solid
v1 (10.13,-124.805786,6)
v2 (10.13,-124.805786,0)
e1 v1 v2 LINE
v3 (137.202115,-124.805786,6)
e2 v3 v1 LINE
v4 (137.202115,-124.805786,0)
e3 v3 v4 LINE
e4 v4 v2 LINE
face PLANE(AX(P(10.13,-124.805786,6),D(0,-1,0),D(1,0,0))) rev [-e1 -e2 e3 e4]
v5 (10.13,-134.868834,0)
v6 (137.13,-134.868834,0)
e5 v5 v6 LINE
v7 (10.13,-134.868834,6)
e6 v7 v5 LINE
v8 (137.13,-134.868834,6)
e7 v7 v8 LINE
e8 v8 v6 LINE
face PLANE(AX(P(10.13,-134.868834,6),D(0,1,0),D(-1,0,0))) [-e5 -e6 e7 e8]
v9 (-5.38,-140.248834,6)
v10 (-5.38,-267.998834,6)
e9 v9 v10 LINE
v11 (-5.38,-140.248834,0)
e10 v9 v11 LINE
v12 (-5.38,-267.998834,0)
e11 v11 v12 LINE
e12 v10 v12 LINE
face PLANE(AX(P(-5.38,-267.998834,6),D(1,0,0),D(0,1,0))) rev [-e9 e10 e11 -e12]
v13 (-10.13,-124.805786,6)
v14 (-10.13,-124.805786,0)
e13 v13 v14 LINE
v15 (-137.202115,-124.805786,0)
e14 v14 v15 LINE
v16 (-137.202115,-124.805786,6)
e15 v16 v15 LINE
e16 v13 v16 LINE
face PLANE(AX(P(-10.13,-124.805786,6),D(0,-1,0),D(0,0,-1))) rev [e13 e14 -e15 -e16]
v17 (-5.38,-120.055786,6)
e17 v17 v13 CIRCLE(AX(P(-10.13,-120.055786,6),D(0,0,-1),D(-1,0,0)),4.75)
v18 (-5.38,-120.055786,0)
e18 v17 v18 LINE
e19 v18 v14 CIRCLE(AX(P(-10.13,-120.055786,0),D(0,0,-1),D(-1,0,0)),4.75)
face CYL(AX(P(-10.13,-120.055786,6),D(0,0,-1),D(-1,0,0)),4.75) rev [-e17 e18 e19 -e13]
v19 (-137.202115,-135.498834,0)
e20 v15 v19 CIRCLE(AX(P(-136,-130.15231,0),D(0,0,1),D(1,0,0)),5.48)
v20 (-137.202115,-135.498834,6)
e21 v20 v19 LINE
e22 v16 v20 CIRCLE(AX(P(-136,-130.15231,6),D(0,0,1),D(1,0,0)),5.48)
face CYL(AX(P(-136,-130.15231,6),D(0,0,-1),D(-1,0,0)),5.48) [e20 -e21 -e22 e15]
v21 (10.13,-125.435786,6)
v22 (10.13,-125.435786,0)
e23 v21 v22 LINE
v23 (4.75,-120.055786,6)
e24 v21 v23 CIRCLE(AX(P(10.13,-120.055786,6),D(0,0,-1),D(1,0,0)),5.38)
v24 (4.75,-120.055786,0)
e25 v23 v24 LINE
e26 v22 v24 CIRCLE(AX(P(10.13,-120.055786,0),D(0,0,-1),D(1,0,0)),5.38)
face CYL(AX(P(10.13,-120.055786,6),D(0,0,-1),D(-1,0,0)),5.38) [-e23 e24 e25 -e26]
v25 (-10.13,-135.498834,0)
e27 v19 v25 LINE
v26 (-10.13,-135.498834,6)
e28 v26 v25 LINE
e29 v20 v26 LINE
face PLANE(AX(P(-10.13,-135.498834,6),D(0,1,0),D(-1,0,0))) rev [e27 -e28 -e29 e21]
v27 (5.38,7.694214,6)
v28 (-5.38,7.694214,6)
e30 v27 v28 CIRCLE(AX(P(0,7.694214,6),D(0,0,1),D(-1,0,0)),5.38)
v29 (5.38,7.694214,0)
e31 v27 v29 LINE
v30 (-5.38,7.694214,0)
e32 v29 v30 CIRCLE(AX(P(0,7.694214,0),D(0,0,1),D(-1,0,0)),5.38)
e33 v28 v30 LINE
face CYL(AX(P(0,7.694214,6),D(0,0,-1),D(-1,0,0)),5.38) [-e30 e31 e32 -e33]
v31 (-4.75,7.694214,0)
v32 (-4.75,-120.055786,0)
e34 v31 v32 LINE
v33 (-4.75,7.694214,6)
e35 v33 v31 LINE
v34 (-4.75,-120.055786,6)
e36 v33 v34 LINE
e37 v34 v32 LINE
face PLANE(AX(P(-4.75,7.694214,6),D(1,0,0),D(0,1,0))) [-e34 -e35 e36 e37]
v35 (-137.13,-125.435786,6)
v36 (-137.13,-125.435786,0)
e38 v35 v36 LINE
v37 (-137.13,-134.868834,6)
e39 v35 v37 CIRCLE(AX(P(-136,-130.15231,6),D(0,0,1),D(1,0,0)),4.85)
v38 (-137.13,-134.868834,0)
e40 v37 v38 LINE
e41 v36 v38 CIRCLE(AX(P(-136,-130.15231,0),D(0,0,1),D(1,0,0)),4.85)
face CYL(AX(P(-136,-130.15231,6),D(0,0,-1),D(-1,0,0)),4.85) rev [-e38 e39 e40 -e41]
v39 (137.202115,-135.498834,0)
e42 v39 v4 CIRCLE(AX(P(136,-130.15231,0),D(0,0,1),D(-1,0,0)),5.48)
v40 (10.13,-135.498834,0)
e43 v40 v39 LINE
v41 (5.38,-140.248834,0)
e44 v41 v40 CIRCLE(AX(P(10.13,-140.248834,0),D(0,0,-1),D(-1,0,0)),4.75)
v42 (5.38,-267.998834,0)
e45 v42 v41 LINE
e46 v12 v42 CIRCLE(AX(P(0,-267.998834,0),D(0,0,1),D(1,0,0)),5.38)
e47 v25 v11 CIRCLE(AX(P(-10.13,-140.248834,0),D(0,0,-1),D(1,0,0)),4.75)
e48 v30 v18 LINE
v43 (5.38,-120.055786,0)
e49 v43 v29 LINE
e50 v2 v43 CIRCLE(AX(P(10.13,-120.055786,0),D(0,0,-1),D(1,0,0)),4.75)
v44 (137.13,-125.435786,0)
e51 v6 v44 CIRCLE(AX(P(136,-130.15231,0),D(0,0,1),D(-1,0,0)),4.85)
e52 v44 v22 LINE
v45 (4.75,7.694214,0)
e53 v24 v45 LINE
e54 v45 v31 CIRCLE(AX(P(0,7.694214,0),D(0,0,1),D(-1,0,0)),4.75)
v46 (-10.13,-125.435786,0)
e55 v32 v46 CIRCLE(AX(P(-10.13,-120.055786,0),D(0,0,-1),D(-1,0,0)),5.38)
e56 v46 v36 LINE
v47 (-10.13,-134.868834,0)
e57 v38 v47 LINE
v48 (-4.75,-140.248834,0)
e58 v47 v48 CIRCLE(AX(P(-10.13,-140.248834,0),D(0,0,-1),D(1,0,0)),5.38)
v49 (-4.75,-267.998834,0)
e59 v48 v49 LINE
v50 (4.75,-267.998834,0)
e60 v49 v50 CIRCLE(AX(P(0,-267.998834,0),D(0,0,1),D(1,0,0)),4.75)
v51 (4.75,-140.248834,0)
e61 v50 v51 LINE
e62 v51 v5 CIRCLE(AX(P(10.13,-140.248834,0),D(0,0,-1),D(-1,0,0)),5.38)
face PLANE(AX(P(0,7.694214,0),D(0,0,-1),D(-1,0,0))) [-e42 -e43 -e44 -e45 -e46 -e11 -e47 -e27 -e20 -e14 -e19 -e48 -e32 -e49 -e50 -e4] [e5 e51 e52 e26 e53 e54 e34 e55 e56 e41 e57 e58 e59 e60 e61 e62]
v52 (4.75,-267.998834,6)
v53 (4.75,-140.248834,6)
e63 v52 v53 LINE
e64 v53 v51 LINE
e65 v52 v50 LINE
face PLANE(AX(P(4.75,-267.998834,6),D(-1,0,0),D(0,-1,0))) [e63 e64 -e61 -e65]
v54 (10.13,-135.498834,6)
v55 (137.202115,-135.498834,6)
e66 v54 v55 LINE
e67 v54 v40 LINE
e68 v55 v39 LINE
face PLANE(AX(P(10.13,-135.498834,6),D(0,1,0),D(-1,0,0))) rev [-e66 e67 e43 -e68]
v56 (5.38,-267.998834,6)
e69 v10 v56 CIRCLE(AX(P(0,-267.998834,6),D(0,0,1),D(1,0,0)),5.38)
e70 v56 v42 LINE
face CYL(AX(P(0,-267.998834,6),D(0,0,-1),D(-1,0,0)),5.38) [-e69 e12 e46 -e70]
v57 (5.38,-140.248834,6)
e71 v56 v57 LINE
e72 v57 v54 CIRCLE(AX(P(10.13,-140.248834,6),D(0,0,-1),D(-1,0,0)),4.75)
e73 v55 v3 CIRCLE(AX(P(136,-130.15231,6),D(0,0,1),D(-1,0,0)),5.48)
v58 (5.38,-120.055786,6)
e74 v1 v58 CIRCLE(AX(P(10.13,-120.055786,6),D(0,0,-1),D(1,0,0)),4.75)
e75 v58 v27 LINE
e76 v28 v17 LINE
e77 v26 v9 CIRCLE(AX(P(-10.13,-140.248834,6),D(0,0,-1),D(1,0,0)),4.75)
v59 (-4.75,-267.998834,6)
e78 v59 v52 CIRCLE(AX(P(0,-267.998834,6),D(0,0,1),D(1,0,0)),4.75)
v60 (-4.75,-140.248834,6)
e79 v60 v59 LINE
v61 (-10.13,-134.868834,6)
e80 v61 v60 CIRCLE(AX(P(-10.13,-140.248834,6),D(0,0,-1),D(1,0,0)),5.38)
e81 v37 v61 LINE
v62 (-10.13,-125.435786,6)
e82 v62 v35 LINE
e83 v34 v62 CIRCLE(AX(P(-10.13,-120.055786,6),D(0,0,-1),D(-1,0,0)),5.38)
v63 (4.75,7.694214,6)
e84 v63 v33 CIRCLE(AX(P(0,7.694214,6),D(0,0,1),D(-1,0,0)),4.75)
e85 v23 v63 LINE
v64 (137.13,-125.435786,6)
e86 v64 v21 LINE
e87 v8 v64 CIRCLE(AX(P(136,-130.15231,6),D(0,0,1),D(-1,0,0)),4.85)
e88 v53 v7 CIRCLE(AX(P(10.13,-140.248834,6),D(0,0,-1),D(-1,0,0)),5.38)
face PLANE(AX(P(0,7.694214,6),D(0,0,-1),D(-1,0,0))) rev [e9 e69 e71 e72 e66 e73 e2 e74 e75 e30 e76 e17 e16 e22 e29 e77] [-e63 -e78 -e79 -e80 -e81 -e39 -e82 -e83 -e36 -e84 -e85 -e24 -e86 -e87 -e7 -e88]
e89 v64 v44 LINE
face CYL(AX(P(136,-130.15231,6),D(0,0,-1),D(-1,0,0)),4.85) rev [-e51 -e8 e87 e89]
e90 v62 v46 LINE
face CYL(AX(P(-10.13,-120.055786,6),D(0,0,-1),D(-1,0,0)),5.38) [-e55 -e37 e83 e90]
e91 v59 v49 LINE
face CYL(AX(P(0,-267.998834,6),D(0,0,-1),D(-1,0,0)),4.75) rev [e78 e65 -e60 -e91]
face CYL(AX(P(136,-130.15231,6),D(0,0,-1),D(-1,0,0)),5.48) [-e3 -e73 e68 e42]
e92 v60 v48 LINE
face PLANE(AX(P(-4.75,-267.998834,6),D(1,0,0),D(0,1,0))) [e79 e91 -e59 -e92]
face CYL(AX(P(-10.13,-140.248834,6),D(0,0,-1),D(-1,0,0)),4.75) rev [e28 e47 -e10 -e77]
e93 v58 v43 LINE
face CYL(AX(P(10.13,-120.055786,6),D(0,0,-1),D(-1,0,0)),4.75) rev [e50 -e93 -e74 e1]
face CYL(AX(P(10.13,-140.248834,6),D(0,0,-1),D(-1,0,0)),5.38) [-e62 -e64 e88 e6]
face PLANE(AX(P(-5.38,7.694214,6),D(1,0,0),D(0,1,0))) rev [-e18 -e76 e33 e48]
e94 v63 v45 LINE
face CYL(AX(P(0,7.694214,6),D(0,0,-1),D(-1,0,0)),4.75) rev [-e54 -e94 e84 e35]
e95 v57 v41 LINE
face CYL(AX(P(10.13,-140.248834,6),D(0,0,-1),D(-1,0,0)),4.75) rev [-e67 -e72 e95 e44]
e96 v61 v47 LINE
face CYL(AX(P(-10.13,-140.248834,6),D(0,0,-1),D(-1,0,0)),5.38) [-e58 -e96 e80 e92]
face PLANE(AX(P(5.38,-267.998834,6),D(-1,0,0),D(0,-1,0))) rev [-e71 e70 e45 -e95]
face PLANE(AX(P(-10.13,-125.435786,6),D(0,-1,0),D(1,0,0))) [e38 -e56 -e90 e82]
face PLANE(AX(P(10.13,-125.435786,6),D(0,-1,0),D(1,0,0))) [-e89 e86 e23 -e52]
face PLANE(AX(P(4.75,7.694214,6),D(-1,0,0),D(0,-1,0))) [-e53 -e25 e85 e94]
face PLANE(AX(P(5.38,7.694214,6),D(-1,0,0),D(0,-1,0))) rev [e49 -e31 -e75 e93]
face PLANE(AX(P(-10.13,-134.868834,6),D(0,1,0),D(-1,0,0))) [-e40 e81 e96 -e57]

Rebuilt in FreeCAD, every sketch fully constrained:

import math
import FreeCAD as App
import Part
import Sketcher

doc = App.newDocument("Part")
body = doc.addObject("PartDesign::Body", "Body")

# Sketch on XY plane
sketch1 = body.newObject("Sketcher::SketchObject", "Sketch")
sketch1.AttachmentSupport = (doc.getObject("XY_Plane"), [""])
sketch1.MapMode = "FlatFace"
sketch1.addGeometry(Part.LineSegment(App.Vector(-5.38, 7.694214, 0), App.Vector(-5.38, -120.055786, 0)), False)
sketch1.addGeometry(Part.ArcOfCircle(Part.Circle(App.Vector(-10.13, -120.055786, 0), App.Vector(0, 0, 1), 4.75), math.radians(-90), math.radians(0)), False)
sketch1.addGeometry(Part.LineSegment(App.Vector(-10.13, -124.805786, 0), App.Vector(-137.202115, -124.805786, 0)), False)
sketch1.addGeometry(Part.ArcOfCircle(Part.Circle(App.Vector(-136, -130.15231, 0), App.Vector(0, 0, 1), 5.48), math.radians(102.671679), math.radians(257.328321)), False)
sketch1.addGeometry(Part.LineSegment(App.Vector(-137.202115, -135.498834, 0), App.Vector(-10.13, -135.498834, 0)), False)
sketch1.addGeometry(Part.ArcOfCircle(Part.Circle(App.Vector(-10.13, -140.248834, 0), App.Vector(0, 0, 1), 4.75), math.radians(0), math.radians(90)), False)
sketch1.addGeometry(Part.LineSegment(App.Vector(-5.38, -140.248834, 0), App.Vector(-5.38, -267.998834, 0)), False)
sketch1.addGeometry(Part.ArcOfCircle(Part.Circle(App.Vector(0, -267.998834, 0), App.Vector(0, 0, 1), 5.38), math.radians(180), math.radians(360)), False)
sketch1.addGeometry(Part.LineSegment(App.Vector(5.38, -267.998834, 0), App.Vector(5.38, -140.248834, 0)), False)
sketch1.addGeometry(Part.ArcOfCircle(Part.Circle(App.Vector(10.13, -140.248834, 0), App.Vector(0, 0, 1), 4.75), math.radians(90), math.radians(180)), False)
sketch1.addGeometry(Part.LineSegment(App.Vector(10.13, -135.498834, 0), App.Vector(137.202115, -135.498834, 0)), False)
sketch1.addGeometry(Part.ArcOfCircle(Part.Circle(App.Vector(136, -130.15231, 0), App.Vector(0, 0, 1), 5.48), math.radians(-77.328321), math.radians(77.328321)), False)
sketch1.addGeometry(Part.LineSegment(App.Vector(137.202115, -124.805786, 0), App.Vector(10.13, -124.805786, 0)), False)
sketch1.addGeometry(Part.ArcOfCircle(Part.Circle(App.Vector(10.13, -120.055786, 0), App.Vector(0, 0, 1), 4.75), math.radians(180), math.radians(270)), False)
sketch1.addGeometry(Part.LineSegment(App.Vector(5.38, -120.055786, 0), App.Vector(5.38, 7.694214, 0)), False)
sketch1.addGeometry(Part.ArcOfCircle(Part.Circle(App.Vector(0, 7.694214, 0), App.Vector(0, 0, 1), 5.38), math.radians(0), math.radians(180)), False)
sketch1.addGeometry(Part.LineSegment(App.Vector(-4.75, -120.055786, 0), App.Vector(-4.75, 7.694214, 0)), False)
sketch1.addGeometry(Part.ArcOfCircle(Part.Circle(App.Vector(0, 7.694214, 0), App.Vector(0, 0, 1), 4.75), math.radians(0), math.radians(180)), False)
sketch1.addGeometry(Part.LineSegment(App.Vector(4.75, 7.694214, 0), App.Vector(4.75, -120.055786, 0)), False)
sketch1.addGeometry(Part.ArcOfCircle(Part.Circle(App.Vector(10.13, -120.055786, 0), App.Vector(0, 0, 1), 5.38), math.radians(180), math.radians(270)), False)
sketch1.addGeometry(Part.LineSegment(App.Vector(10.13, -125.435786, 0), App.Vector(137.13, -125.435786, 0)), False)
sketch1.addGeometry(Part.ArcOfCircle(Part.Circle(App.Vector(136, -130.15231, 0), App.Vector(0, 0, 1), 4.85), math.radians(-76.526849), math.radians(76.526849)), False)
sketch1.addGeometry(Part.LineSegment(App.Vector(137.13, -134.868834, 0), App.Vector(10.13, -134.868834, 0)), False)
sketch1.addGeometry(Part.ArcOfCircle(Part.Circle(App.Vector(10.13, -140.248834, 0), App.Vector(0, 0, 1), 5.38), math.radians(90), math.radians(180)), False)
sketch1.addGeometry(Part.LineSegment(App.Vector(4.75, -140.248834, 0), App.Vector(4.75, -267.998834, 0)), False)
sketch1.addGeometry(Part.ArcOfCircle(Part.Circle(App.Vector(0, -267.998834, 0), App.Vector(0, 0, 1), 4.75), math.radians(180), math.radians(360)), False)
sketch1.addGeometry(Part.LineSegment(App.Vector(-4.75, -267.998834, 0), App.Vector(-4.75, -140.248834, 0)), False)
sketch1.addGeometry(Part.ArcOfCircle(Part.Circle(App.Vector(-10.13, -140.248834, 0), App.Vector(0, 0, 1), 5.38), math.radians(0), math.radians(90)), False)
sketch1.addGeometry(Part.LineSegment(App.Vector(-10.13, -134.868834, 0), App.Vector(-137.13, -134.868834, 0)), False)
sketch1.addGeometry(Part.ArcOfCircle(Part.Circle(App.Vector(-136, -130.15231, 0), App.Vector(0, 0, 1), 4.85), math.radians(103.473151), math.radians(256.526849)), False)
sketch1.addGeometry(Part.LineSegment(App.Vector(-137.13, -125.435786, 0), App.Vector(-10.13, -125.435786, 0)), False)
sketch1.addGeometry(Part.ArcOfCircle(Part.Circle(App.Vector(-10.13, -120.055786, 0), App.Vector(0, 0, 1), 5.38), math.radians(-90), math.radians(0)), False)
sketch1.addConstraint(Sketcher.Constraint("Tangent", 0, 2, 1, 2))
sketch1.addConstraint(Sketcher.Constraint("Tangent", 1, 1, 2, 1))
sketch1.addConstraint(Sketcher.Constraint("Coincident", 2, 2, 3, 1))
sketch1.addConstraint(Sketcher.Constraint("Coincident", 3, 2, 4, 1))
sketch1.addConstraint(Sketcher.Constraint("Tangent", 4, 2, 5, 2))
sketch1.addConstraint(Sketcher.Constraint("Tangent", 5, 1, 6, 1))
sketch1.addConstraint(Sketcher.Constraint("Tangent", 6, 2, 7, 1))
sketch1.addConstraint(Sketcher.Constraint("Tangent", 7, 2, 8, 1))
sketch1.addConstraint(Sketcher.Constraint("Tangent", 8, 2, 9, 2))
sketch1.addConstraint(Sketcher.Constraint("Tangent", 9, 1, 10, 1))
sketch1.addConstraint(Sketcher.Constraint("Coincident", 10, 2, 11, 1))
sketch1.addConstraint(Sketcher.Constraint("Coincident", 11, 2, 12, 1))
sketch1.addConstraint(Sketcher.Constraint("Tangent", 12, 2, 13, 2))
sketch1.addConstraint(Sketcher.Constraint("Tangent", 13, 1, 14, 1))
sketch1.addConstraint(Sketcher.Constraint("Tangent", 14, 2, 15, 1))
sketch1.addConstraint(Sketcher.Constraint("Tangent", 15, 2, 0, 1))
sketch1.addConstraint(Sketcher.Constraint("Tangent", 16, 2, 17, 2))
sketch1.addConstraint(Sketcher.Constraint("Tangent", 17, 1, 18, 1))
sketch1.addConstraint(Sketcher.Constraint("Tangent", 18, 2, 19, 1))
sketch1.addConstraint(Sketcher.Constraint("Tangent", 19, 2, 20, 1))
sketch1.addConstraint(Sketcher.Constraint("Coincident", 20, 2, 21, 2))
sketch1.addConstraint(Sketcher.Constraint("Coincident", 21, 1, 22, 1))
sketch1.addConstraint(Sketcher.Constraint("Tangent", 22, 2, 23, 1))
sketch1.addConstraint(Sketcher.Constraint("Tangent", 23, 2, 24, 1))
sketch1.addConstraint(Sketcher.Constraint("Tangent", 24, 2, 25, 2))
sketch1.addConstraint(Sketcher.Constraint("Tangent", 25, 1, 26, 1))
sketch1.addConstraint(Sketcher.Constraint("Tangent", 26, 2, 27, 1))
sketch1.addConstraint(Sketcher.Constraint("Tangent", 27, 2, 28, 1))
sketch1.addConstraint(Sketcher.Constraint("Coincident", 28, 2, 29, 2))
sketch1.addConstraint(Sketcher.Constraint("Coincident", 29, 1, 30, 1))
sketch1.addConstraint(Sketcher.Constraint("Tangent", 30, 2, 31, 1))
sketch1.addConstraint(Sketcher.Constraint("Tangent", 31, 2, 16, 1))
sketch1.addConstraint(Sketcher.Constraint("Vertical", 0))
sketch1.addConstraint(Sketcher.Constraint("Horizontal", 2))
sketch1.addConstraint(Sketcher.Constraint("Horizontal", 4))
sketch1.addConstraint(Sketcher.Constraint("Vertical", 6))
sketch1.addConstraint(Sketcher.Constraint("Vertical", 8))
sketch1.addConstraint(Sketcher.Constraint("Horizontal", 10))
sketch1.addConstraint(Sketcher.Constraint("Horizontal", 12))
sketch1.addConstraint(Sketcher.Constraint("Vertical", 14))
sketch1.addConstraint(Sketcher.Constraint("Vertical", 16))
sketch1.addConstraint(Sketcher.Constraint("Vertical", 18))
sketch1.addConstraint(Sketcher.Constraint("Horizontal", 20))
sketch1.addConstraint(Sketcher.Constraint("Horizontal", 22))
sketch1.addConstraint(Sketcher.Constraint("Vertical", 24))
sketch1.addConstraint(Sketcher.Constraint("Vertical", 26))
sketch1.addConstraint(Sketcher.Constraint("Horizontal", 28))
sketch1.addConstraint(Sketcher.Constraint("Horizontal", 30))
sketch1.addConstraint(Sketcher.Constraint("Coincident", 17, 3, 15, 3))
sketch1.addConstraint(Sketcher.Constraint("Coincident", 19, 3, 13, 3))
sketch1.addConstraint(Sketcher.Constraint("Coincident", 21, 3, 11, 3))
sketch1.addConstraint(Sketcher.Constraint("Coincident", 23, 3, 9, 3))
sketch1.addConstraint(Sketcher.Constraint("Coincident", 25, 3, 7, 3))
sketch1.addConstraint(Sketcher.Constraint("Coincident", 27, 3, 5, 3))
sketch1.addConstraint(Sketcher.Constraint("Coincident", 29, 3, 3, 3))
sketch1.addConstraint(Sketcher.Constraint("Coincident", 31, 3, 1, 3))
sketch1.addConstraint(Sketcher.Constraint("Equal", 1, 5))
sketch1.addConstraint(Sketcher.Constraint("Equal", 5, 9))
sketch1.addConstraint(Sketcher.Constraint("Equal", 3, 11))
sketch1.addConstraint(Sketcher.Constraint("Equal", 9, 13))
sketch1.addConstraint(Sketcher.Constraint("Equal", 7, 15))
sketch1.addConstraint(Sketcher.Constraint("Equal", 13, 17))
sketch1.addConstraint(Sketcher.Constraint("Equal", 19, 23))
sketch1.addConstraint(Sketcher.Constraint("Equal", 21, 29))
sketch1.addConstraint(Sketcher.Constraint("Symmetric", 5, 3, 9, 3, -2))
sketch1.addConstraint(Sketcher.Constraint("Symmetric", 3, 3, 11, 3, -2))
sketch1.addConstraint(Sketcher.Constraint("Symmetric", 1, 3, 13, 3, -2))
sketch1.addConstraint(Sketcher.Constraint("Vertical", 2, 2, 3, 2))
sketch1.addConstraint(Sketcher.Constraint("Equal", 0, 6))
sketch1.addConstraint(Sketcher.Constraint("DistanceX", 20, 1, 20, 2, 127.0))
sketch1.addConstraint(Sketcher.Constraint("Radius", 1, 4.75))
sketch1.addConstraint(Sketcher.Constraint("Radius", 3, 5.48))
sketch1.addConstraint(Sketcher.Constraint("Radius", 7, 5.38))
sketch1.addConstraint(Sketcher.Constraint("Radius", 21, 4.85))
sketch1.addConstraint(Sketcher.Constraint("DistanceX", 3, 3, -1, 1, 136.0))
sketch1.addConstraint(Sketcher.Constraint("DistanceY", 0, 2, 0, 1, 127.75))
sketch1.addConstraint(Sketcher.Constraint("DistanceY", 3, 3, -1, 1, 130.15231))
pad1 = body.newObject("PartDesign::Pad", "Pad")
pad1.Profile = sketch1
pad1.Length = 6

doc.recompute()
